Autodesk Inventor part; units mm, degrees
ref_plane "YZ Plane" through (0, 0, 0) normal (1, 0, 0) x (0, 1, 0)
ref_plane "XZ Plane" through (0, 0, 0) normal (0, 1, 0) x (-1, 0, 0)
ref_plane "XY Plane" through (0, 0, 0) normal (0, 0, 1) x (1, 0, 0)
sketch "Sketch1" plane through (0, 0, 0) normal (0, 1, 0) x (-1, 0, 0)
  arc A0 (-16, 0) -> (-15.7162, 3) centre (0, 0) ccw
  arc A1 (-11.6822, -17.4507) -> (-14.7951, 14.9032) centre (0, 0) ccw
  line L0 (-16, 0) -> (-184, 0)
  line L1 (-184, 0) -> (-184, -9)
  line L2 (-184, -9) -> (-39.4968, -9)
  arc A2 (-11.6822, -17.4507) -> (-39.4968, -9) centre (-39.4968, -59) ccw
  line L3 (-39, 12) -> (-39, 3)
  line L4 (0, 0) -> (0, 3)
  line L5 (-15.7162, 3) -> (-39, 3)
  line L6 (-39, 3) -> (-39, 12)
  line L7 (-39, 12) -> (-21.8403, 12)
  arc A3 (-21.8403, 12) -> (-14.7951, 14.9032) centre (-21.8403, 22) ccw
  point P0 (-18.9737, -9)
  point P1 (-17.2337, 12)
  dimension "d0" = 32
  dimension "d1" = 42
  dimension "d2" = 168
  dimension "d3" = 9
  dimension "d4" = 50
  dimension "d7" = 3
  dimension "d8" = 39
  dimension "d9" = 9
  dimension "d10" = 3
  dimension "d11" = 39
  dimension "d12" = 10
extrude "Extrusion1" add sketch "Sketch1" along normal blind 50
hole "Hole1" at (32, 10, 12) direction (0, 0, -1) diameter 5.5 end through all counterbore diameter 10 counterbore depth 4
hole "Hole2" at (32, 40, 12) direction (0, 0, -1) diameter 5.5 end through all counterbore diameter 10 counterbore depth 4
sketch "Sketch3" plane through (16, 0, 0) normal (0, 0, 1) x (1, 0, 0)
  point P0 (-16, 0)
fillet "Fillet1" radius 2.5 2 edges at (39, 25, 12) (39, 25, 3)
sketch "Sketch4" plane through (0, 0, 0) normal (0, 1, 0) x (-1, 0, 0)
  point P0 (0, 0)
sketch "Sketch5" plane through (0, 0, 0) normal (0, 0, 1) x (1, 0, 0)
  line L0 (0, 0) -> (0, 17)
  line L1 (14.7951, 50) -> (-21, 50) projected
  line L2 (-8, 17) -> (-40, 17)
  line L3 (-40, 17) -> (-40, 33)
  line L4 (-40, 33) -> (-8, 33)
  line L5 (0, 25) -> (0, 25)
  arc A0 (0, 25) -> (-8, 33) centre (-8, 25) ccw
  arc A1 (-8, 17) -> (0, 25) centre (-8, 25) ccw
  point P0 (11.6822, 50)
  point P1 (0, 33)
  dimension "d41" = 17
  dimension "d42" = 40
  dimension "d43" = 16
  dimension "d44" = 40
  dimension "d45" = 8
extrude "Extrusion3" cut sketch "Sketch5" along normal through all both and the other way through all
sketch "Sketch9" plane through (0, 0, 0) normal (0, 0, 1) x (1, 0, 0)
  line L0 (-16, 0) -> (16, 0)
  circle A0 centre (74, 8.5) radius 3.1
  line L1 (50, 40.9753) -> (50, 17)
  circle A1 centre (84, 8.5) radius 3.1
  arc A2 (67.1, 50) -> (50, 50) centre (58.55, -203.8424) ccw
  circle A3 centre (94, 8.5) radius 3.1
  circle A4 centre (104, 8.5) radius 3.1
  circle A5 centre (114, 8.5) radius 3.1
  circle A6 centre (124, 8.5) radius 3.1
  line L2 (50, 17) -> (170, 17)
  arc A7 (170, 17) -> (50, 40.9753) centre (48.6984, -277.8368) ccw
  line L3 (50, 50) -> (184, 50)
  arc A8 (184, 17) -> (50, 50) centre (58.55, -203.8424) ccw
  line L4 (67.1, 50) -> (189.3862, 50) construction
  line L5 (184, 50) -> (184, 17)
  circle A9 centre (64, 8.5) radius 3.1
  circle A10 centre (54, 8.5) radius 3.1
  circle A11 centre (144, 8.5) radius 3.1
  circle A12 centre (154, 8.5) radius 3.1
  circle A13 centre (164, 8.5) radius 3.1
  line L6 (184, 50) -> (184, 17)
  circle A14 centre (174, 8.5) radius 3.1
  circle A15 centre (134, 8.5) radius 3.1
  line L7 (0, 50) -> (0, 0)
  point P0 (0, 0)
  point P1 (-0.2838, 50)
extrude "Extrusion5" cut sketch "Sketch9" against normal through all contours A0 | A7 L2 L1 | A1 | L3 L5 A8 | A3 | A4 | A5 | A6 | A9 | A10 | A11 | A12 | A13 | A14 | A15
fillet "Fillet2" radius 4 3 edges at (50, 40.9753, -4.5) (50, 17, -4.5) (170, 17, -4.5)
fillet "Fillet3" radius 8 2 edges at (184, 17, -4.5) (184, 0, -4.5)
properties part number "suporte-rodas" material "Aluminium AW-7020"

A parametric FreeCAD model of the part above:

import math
import FreeCAD as App
import Part
import Sketcher

V = App.Vector


def edges_at(feature, points):
    """Names of the edges that pass closest to the given points."""
    edges = feature.Shape.Edges
    near = lambda p: min(range(len(edges)), key=lambda i: edges[i].distToShape(Part.Vertex(*p))[0])
    return sorted({f"Edge{near(p) + 1}" for p in points})

doc = App.newDocument("Part")
body = doc.addObject("PartDesign::Body", "Body")

# Sketch on XZ plane
sketch1 = body.newObject("Sketcher::SketchObject", "Sketch")
sketch1.AttachmentSupport = (doc.getObject("XZ_Plane"), [""])
sketch1.MapMode = "FlatFace"
sketch1.addGeometry(Part.ArcOfCircle(Part.Circle(V(0, 0, 0), V(0, 0, 1), 16), math.radians(10.806945), math.radians(360)), False)
sketch1.addGeometry(Part.LineSegment(V(16, 0, 0), V(184, 0, 0)), False)
sketch1.addGeometry(Part.LineSegment(V(184, 0, 0), V(184, -9, 0)), False)
sketch1.addGeometry(Part.LineSegment(V(184, -9, 0), V(39.4968, -9, 0)), False)
sketch1.addGeometry(Part.ArcOfCircle(Part.Circle(V(39.4968, -59, 0), V(0, 0, 1), 49.999963), math.radians(90), math.radians(123.799779)), False)
sketch1.addGeometry(Part.ArcOfCircle(Part.Circle(V(0, 0, 0), V(0, 0, 1), 21.000017), math.radians(45.208552), math.radians(303.799942)), False)
sketch1.addGeometry(Part.ArcOfCircle(Part.Circle(V(21.8403, 22, 0), V(0, 0, 1), 10), math.radians(-134.790945), math.radians(-90)), False)
sketch1.addGeometry(Part.LineSegment(V(21.8403, 12, 0), V(39, 12, 0)), False)
sketch1.addGeometry(Part.LineSegment(V(39, 12, 0), V(39, 3, 0)), False)
sketch1.addGeometry(Part.LineSegment(V(39, 3, 0), V(15.7162, 3, 0)), False)
sketch1.addConstraint(Sketcher.Constraint("Coincident", 0, 2, 1, 1))
sketch1.addConstraint(Sketcher.Constraint("Coincident", 1, 2, 2, 1))
sketch1.addConstraint(Sketcher.Constraint("Coincident", 2, 2, 3, 1))
sketch1.addConstraint(Sketcher.Constraint("Tangent", 3, 2, 4, 1))
sketch1.addConstraint(Sketcher.Constraint("Tangent", 4, 2, 5, 2))
sketch1.addConstraint(Sketcher.Constraint("Tangent", 5, 1, 6, 1))
sketch1.addConstraint(Sketcher.Constraint("Tangent", 6, 2, 7, 1))
sketch1.addConstraint(Sketcher.Constraint("Coincident", 7, 2, 8, 1))
sketch1.addConstraint(Sketcher.Constraint("Coincident", 8, 2, 9, 1))
sketch1.addConstraint(Sketcher.Constraint("Coincident", 9, 2, 0, 1))
sketch1.addConstraint(Sketcher.Constraint("Horizontal", 1))
sketch1.addConstraint(Sketcher.Constraint("Vertical", 2))
sketch1.addConstraint(Sketcher.Constraint("Horizontal", 3))
sketch1.addConstraint(Sketcher.Constraint("Horizontal", 7))
sketch1.addConstraint(Sketcher.Constraint("Vertical", 8))
sketch1.addConstraint(Sketcher.Constraint("Horizontal", 9))
sketch1.addConstraint(Sketcher.Constraint("Coincident", 0, 3, -1, 1))
sketch1.addConstraint(Sketcher.Constraint("Coincident", 5, 3, -1, 1))
sketch1.addConstraint(Sketcher.Constraint("PointOnObject", 0, 2, -1))
sketch1.addConstraint(Sketcher.Constraint("Equal", 2, 8))
sketch1.addConstraint(Sketcher.Constraint("Radius", 0, 16.0))
sketch1.addConstraint(Sketcher.Constraint("Radius", 4, 50.0))
sketch1.addConstraint(Sketcher.Constraint("Radius", 5, 21.0))
sketch1.addConstraint(Sketcher.Constraint("Radius", 6, 10.0))
sketch1.addConstraint(Sketcher.Constraint("DistanceX", 1, 1, 1, 2, 168.0))
sketch1.addConstraint(Sketcher.Constraint("DistanceY", 2, 2, 2, 1, 9.0))
sketch1.addConstraint(Sketcher.Constraint("DistanceX", -1, 1, 7, 2, 39.0))
sketch1.addConstraint(Sketcher.Constraint("DistanceY", -1, 1, 8, 2, 3.0))
pad1 = body.newObject("PartDesign::Pad", "Pad")
pad1.Profile = sketch1
pad1.Length = 50
pad1.Reversed = True

# Sketch on XY plane
sketch2 = body.newObject("Sketcher::SketchObject", "Sketch001")
sketch2.AttachmentSupport = (doc.getObject("XY_Plane"), [""])
sketch2.MapMode = "FlatFace"
sketch2.AttachmentOffset = App.Placement(V(0, 0, 12), App.Rotation())
sketch2.addGeometry(Part.Circle(V(32, 10, 0), V(0, 0, 1), 2.75), False)
sketch2.addConstraint(Sketcher.Constraint("Diameter", 0, 5.5))
sketch2.addConstraint(Sketcher.Constraint("DistanceX", -1, 1, 0, 3, 32.0))
sketch2.addConstraint(Sketcher.Constraint("DistanceY", -1, 1, 0, 3, 10.0))
doc.recompute()
hole = body.newObject("PartDesign::Hole", "Hole")
hole.Profile = sketch2
hole.ThreadType = "None"
hole.Diameter = 5.5
hole.DepthType = "ThroughAll"
hole.HoleCutType = "Counterbore"
hole.HoleCutDiameter = 10
hole.HoleCutDepth = 4

# Sketch on XY plane
sketch3 = body.newObject("Sketcher::SketchObject", "Sketch002")
sketch3.AttachmentSupport = (doc.getObject("XY_Plane"), [""])
sketch3.MapMode = "FlatFace"
sketch3.AttachmentOffset = App.Placement(V(0, 0, 12), App.Rotation())
sketch3.addGeometry(Part.Circle(V(32, 40, 0), V(0, 0, 1), 2.75), False)
sketch3.addConstraint(Sketcher.Constraint("Diameter", 0, 5.5))
sketch3.addConstraint(Sketcher.Constraint("DistanceX", -1, 1, 0, 3, 32.0))
sketch3.addConstraint(Sketcher.Constraint("DistanceY", -1, 1, 0, 3, 40.0))
doc.recompute()
hole2 = body.newObject("PartDesign::Hole", "Hole001")
hole2.Profile = sketch3
hole2.ThreadType = "None"
hole2.Diameter = 5.5
hole2.DepthType = "ThroughAll"
hole2.HoleCutType = "Counterbore"
hole2.HoleCutDiameter = 10
hole2.HoleCutDepth = 4
doc.recompute()

fillet = body.newObject("PartDesign::Fillet", "Fillet")
fillet.Base = (hole2, edges_at(hole2, [(39, 25, 12), (39, 25, 3)]))
fillet.Radius = 2.5

# Sketch on XY plane
sketch4 = body.newObject("Sketcher::SketchObject", "Sketch003")
sketch4.AttachmentSupport = (doc.getObject("XY_Plane"), [""])
sketch4.MapMode = "FlatFace"
sketch4.addGeometry(Part.LineSegment(V(-40, 17, 0), V(-8, 17, 0)), False)
sketch4.addGeometry(Part.ArcOfCircle(Part.Circle(V(-8, 25, 0), V(0, 0, 1), 8), math.radians(-90), math.radians(90)), False)
sketch4.addGeometry(Part.LineSegment(V(-8, 33, 0), V(-40, 33, 0)), False)
sketch4.addGeometry(Part.LineSegment(V(-40, 33, 0), V(-40, 17, 0)), False)
sketch4.addConstraint(Sketcher.Constraint("Tangent", 0, 2, 1, 1))
sketch4.addConstraint(Sketcher.Constraint("Tangent", 1, 2, 2, 1))
sketch4.addConstraint(Sketcher.Constraint("Coincident", 2, 2, 3, 1))
sketch4.addConstraint(Sketcher.Constraint("Coincident", 3, 2, 0, 1))
sketch4.addConstraint(Sketcher.Constraint("Horizontal", 0))
sketch4.addConstraint(Sketcher.Constraint("Horizontal", 2))
sketch4.addConstraint(Sketcher.Constraint("Vertical", 3))
sketch4.addConstraint(Sketcher.Constraint("Radius", 1, 8.0))
sketch4.addConstraint(Sketcher.Constraint("DistanceX", 1, 3, -1, 1, 8.0))
sketch4.addConstraint(Sketcher.Constraint("DistanceY", -1, 1, 0, 2, 17.0))
sketch4.addConstraint(Sketcher.Constraint("DistanceX", 2, 2, -1, 1, 40.0))
pocket1 = body.newObject("PartDesign::Pocket", "Pocket")
pocket1.Profile = sketch4
pocket1.Type = "ThroughAll"
pocket1.Midplane = True

# Sketch on XY plane
sketch5 = body.newObject("Sketcher::SketchObject", "Sketch004")
sketch5.AttachmentSupport = (doc.getObject("XY_Plane"), [""])
sketch5.MapMode = "FlatFace"
sketch5.addGeometry(Part.Circle(V(74, 8.5, 0), V(0, 0, 1), 3.1), False)
sketch5.addGeometry(Part.ArcOfCircle(Part.Circle(V(48.698002, -277.838117, 0), V(0, 0, 1), 318.816076), math.radians(67.636804), math.radians(89.766012)), False)
sketch5.addGeometry(Part.LineSegment(V(50, 40.9753, 0), V(50, 17, 0)), False)
sketch5.addGeometry(Part.LineSegment(V(50, 17, 0), V(170, 17, 0)), False)
sketch5.addGeometry(Part.Circle(V(84, 8.5, 0), V(0, 0, 1), 3.1), False)
sketch5.addGeometry(Part.LineSegment(V(184, 50, 0), V(67.1, 50, 0)), False)
sketch5.addGeometry(Part.ArcOfCircle(Part.Circle(V(58.55, -203.8424, 0), V(0, 0, 1), 253.986351), math.radians(60.401166), math.radians(88.070875)), False)
sketch5.addGeometry(Part.LineSegment(V(184, 17, 0), V(184, 50, 0)), False)
sketch5.addGeometry(Part.Circle(V(94, 8.5, 0), V(0, 0, 1), 3.1), False)
sketch5.addGeometry(Part.Circle(V(104, 8.5, 0), V(0, 0, 1), 3.1), False)
sketch5.addGeometry(Part.Circle(V(114, 8.5, 0), V(0, 0, 1), 3.1), False)
sketch5.addGeometry(Part.Circle(V(124, 8.5, 0), V(0, 0, 1), 3.1), False)
sketch5.addGeometry(Part.Circle(V(64, 8.5, 0), V(0, 0, 1), 3.1), False)
sketch5.addGeometry(Part.Circle(V(54, 8.5, 0), V(0, 0, 1), 3.1), False)
sketch5.addGeometry(Part.Circle(V(144, 8.5, 0), V(0, 0, 1), 3.1), False)
sketch5.addGeometry(Part.Circle(V(154, 8.5, 0), V(0, 0, 1), 3.1), False)
sketch5.addGeometry(Part.Circle(V(164, 8.5, 0), V(0, 0, 1), 3.1), False)
sketch5.addGeometry(Part.Circle(V(174, 8.5, 0), V(0, 0, 1), 3.1), False)
sketch5.addGeometry(Part.Circle(V(134, 8.5, 0), V(0, 0, 1), 3.1), False)
sketch5.addConstraint(Sketcher.Constraint("Coincident", 1, 2, 2, 1))
sketch5.addConstraint(Sketcher.Constraint("Coincident", 2, 2, 3, 1))
sketch5.addConstraint(Sketcher.Constraint("Coincident", 3, 2, 1, 1))
sketch5.addConstraint(Sketcher.Constraint("Coincident", 5, 2, 6, 2))
sketch5.addConstraint(Sketcher.Constraint("Coincident", 6, 1, 7, 1))
sketch5.addConstraint(Sketcher.Constraint("Coincident", 7, 2, 5, 1))
sketch5.addConstraint(Sketcher.Constraint("Vertical", 2))
sketch5.addConstraint(Sketcher.Constraint("Horizontal", 3))
sketch5.addConstraint(Sketcher.Constraint("Horizontal", 5))
sketch5.addConstraint(Sketcher.Constraint("Vertical", 7))
sketch5.addConstraint(Sketcher.Constraint("Equal", 0, 4))
sketch5.addConstraint(Sketcher.Constraint("Equal", 4, 8))
sketch5.addConstraint(Sketcher.Constraint("Equal", 8, 9))
sketch5.addConstraint(Sketcher.Constraint("Equal", 9, 10))
sketch5.addConstraint(Sketcher.Constraint("Equal", 10, 11))
sketch5.addConstraint(Sketcher.Constraint("Equal", 11, 12))
sketch5.addConstraint(Sketcher.Constraint("Equal", 12, 13))
sketch5.addConstraint(Sketcher.Constraint("Equal", 13, 14))
sketch5.addConstraint(Sketcher.Constraint("Equal", 14, 15))
sketch5.addConstraint(Sketcher.Constraint("Equal", 15, 16))
sketch5.addConstraint(Sketcher.Constraint("Equal", 16, 17))
sketch5.addConstraint(Sketcher.Constraint("Equal", 17, 18))
sketch5.addConstraint(Sketcher.Constraint("Horizontal", 0, 3, 4, 3))
sketch5.addConstraint(Sketcher.Constraint("Horizontal", 4, 3, 8, 3))
sketch5.addConstraint(Sketcher.Constraint("Horizontal", 8, 3, 9, 3))
sketch5.addConstraint(Sketcher.Constraint("Horizontal", 9, 3, 10, 3))
sketch5.addConstraint(Sketcher.Constraint("Horizontal", 10, 3, 11, 3))
sketch5.addConstraint(Sketcher.Constraint("Horizontal", 11, 3, 12, 3))
sketch5.addConstraint(Sketcher.Constraint("Horizontal", 12, 3, 13, 3))
sketch5.addConstraint(Sketcher.Constraint("Horizontal", 13, 3, 14, 3))
sketch5.addConstraint(Sketcher.Constraint("Horizontal", 14, 3, 15, 3))
sketch5.addConstraint(Sketcher.Constraint("Horizontal", 15, 3, 16, 3))
sketch5.addConstraint(Sketcher.Constraint("Horizontal", 16, 3, 17, 3))
sketch5.addConstraint(Sketcher.Constraint("Horizontal", 17, 3, 18, 3))
sketch5.addConstraint(Sketcher.Constraint("Horizontal", 3, 2, 6, 1))
sketch5.addConstraint(Sketcher.Constraint("Diameter", 0, 6.2))
sketch5.addConstraint(Sketcher.Constraint("DistanceX", 3, 1, 3, 2, 120.0))
sketch5.addConstraint(Sketcher.Constraint("DistanceY", 7, 1, 7, 2, 33.0))
sketch5.addConstraint(Sketcher.Constraint("DistanceX", 5, 2, 5, 1, 116.9))
sketch5.addConstraint(Sketcher.Constraint("DistanceX", -1, 1, 0, 3, 74.0))
sketch5.addConstraint(Sketcher.Constraint("DistanceX", -1, 1, 4, 3, 84.0))
sketch5.addConstraint(Sketcher.Constraint("DistanceX", -1, 1, 8, 3, 94.0))
sketch5.addConstraint(Sketcher.Constraint("DistanceX", -1, 1, 9, 3, 104.0))
sketch5.addConstraint(Sketcher.Constraint("DistanceX", -1, 1, 10, 3, 114.0))
sketch5.addConstraint(Sketcher.Constraint("DistanceX", -1, 1, 11, 3, 124.0))
sketch5.addConstraint(Sketcher.Constraint("DistanceX", -1, 1, 12, 3, 64.0))
sketch5.addConstraint(Sketcher.Constraint("DistanceX", -1, 1, 13, 3, 54.0))
sketch5.addConstraint(Sketcher.Constraint("DistanceX", -1, 1, 14, 3, 144.0))
sketch5.addConstraint(Sketcher.Constraint("DistanceX", -1, 1, 15, 3, 154.0))
sketch5.addConstraint(Sketcher.Constraint("DistanceX", -1, 1, 16, 3, 164.0))
sketch5.addConstraint(Sketcher.Constraint("DistanceX", -1, 1, 17, 3, 174.0))
sketch5.addConstraint(Sketcher.Constraint("DistanceX", -1, 1, 18, 3, 134.0))
sketch5.addConstraint(Sketcher.Constraint("DistanceX", -1, 1, 2, 2, 50.0))
sketch5.addConstraint(Sketcher.Constraint("DistanceY", -1, 1, 2, 2, 17.0))
sketch5.addConstraint(Sketcher.Constraint("DistanceX", -1, 1, 6, 1, 184.0))
sketch5.addConstraint(Sketcher.Constraint("Radius", 1, 318.816))
sketch5.addConstraint(Sketcher.Constraint("DistanceY", -1, 1, 0, 3, 8.5))
sketch5.addConstraint(Sketcher.Constraint("Radius", 6, 253.9864))
sketch5.addConstraint(Sketcher.Constraint("DistanceY", 2, 2, 2, 1, 23.9753))
pocket2 = body.newObject("PartDesign::Pocket", "Pocket001")
pocket2.Profile = sketch5
pocket2.Type = "ThroughAll"
doc.recompute()

fillet2 = body.newObject("PartDesign::Fillet", "Fillet001")
fillet2.Base = (pocket2, edges_at(pocket2, [(50, 40.975, -4.5), (50, 17, -4.5), (170, 17, -4.5)]))
fillet2.Radius = 4
doc.recompute()

fillet3 = body.newObject("PartDesign::Fillet", "Fillet002")
fillet3.Base = (fillet2, edges_at(fillet2, [(184, 17, -4.5), (184, 0, -4.5)]))
fillet3.Radius = 8

doc.recompute()
